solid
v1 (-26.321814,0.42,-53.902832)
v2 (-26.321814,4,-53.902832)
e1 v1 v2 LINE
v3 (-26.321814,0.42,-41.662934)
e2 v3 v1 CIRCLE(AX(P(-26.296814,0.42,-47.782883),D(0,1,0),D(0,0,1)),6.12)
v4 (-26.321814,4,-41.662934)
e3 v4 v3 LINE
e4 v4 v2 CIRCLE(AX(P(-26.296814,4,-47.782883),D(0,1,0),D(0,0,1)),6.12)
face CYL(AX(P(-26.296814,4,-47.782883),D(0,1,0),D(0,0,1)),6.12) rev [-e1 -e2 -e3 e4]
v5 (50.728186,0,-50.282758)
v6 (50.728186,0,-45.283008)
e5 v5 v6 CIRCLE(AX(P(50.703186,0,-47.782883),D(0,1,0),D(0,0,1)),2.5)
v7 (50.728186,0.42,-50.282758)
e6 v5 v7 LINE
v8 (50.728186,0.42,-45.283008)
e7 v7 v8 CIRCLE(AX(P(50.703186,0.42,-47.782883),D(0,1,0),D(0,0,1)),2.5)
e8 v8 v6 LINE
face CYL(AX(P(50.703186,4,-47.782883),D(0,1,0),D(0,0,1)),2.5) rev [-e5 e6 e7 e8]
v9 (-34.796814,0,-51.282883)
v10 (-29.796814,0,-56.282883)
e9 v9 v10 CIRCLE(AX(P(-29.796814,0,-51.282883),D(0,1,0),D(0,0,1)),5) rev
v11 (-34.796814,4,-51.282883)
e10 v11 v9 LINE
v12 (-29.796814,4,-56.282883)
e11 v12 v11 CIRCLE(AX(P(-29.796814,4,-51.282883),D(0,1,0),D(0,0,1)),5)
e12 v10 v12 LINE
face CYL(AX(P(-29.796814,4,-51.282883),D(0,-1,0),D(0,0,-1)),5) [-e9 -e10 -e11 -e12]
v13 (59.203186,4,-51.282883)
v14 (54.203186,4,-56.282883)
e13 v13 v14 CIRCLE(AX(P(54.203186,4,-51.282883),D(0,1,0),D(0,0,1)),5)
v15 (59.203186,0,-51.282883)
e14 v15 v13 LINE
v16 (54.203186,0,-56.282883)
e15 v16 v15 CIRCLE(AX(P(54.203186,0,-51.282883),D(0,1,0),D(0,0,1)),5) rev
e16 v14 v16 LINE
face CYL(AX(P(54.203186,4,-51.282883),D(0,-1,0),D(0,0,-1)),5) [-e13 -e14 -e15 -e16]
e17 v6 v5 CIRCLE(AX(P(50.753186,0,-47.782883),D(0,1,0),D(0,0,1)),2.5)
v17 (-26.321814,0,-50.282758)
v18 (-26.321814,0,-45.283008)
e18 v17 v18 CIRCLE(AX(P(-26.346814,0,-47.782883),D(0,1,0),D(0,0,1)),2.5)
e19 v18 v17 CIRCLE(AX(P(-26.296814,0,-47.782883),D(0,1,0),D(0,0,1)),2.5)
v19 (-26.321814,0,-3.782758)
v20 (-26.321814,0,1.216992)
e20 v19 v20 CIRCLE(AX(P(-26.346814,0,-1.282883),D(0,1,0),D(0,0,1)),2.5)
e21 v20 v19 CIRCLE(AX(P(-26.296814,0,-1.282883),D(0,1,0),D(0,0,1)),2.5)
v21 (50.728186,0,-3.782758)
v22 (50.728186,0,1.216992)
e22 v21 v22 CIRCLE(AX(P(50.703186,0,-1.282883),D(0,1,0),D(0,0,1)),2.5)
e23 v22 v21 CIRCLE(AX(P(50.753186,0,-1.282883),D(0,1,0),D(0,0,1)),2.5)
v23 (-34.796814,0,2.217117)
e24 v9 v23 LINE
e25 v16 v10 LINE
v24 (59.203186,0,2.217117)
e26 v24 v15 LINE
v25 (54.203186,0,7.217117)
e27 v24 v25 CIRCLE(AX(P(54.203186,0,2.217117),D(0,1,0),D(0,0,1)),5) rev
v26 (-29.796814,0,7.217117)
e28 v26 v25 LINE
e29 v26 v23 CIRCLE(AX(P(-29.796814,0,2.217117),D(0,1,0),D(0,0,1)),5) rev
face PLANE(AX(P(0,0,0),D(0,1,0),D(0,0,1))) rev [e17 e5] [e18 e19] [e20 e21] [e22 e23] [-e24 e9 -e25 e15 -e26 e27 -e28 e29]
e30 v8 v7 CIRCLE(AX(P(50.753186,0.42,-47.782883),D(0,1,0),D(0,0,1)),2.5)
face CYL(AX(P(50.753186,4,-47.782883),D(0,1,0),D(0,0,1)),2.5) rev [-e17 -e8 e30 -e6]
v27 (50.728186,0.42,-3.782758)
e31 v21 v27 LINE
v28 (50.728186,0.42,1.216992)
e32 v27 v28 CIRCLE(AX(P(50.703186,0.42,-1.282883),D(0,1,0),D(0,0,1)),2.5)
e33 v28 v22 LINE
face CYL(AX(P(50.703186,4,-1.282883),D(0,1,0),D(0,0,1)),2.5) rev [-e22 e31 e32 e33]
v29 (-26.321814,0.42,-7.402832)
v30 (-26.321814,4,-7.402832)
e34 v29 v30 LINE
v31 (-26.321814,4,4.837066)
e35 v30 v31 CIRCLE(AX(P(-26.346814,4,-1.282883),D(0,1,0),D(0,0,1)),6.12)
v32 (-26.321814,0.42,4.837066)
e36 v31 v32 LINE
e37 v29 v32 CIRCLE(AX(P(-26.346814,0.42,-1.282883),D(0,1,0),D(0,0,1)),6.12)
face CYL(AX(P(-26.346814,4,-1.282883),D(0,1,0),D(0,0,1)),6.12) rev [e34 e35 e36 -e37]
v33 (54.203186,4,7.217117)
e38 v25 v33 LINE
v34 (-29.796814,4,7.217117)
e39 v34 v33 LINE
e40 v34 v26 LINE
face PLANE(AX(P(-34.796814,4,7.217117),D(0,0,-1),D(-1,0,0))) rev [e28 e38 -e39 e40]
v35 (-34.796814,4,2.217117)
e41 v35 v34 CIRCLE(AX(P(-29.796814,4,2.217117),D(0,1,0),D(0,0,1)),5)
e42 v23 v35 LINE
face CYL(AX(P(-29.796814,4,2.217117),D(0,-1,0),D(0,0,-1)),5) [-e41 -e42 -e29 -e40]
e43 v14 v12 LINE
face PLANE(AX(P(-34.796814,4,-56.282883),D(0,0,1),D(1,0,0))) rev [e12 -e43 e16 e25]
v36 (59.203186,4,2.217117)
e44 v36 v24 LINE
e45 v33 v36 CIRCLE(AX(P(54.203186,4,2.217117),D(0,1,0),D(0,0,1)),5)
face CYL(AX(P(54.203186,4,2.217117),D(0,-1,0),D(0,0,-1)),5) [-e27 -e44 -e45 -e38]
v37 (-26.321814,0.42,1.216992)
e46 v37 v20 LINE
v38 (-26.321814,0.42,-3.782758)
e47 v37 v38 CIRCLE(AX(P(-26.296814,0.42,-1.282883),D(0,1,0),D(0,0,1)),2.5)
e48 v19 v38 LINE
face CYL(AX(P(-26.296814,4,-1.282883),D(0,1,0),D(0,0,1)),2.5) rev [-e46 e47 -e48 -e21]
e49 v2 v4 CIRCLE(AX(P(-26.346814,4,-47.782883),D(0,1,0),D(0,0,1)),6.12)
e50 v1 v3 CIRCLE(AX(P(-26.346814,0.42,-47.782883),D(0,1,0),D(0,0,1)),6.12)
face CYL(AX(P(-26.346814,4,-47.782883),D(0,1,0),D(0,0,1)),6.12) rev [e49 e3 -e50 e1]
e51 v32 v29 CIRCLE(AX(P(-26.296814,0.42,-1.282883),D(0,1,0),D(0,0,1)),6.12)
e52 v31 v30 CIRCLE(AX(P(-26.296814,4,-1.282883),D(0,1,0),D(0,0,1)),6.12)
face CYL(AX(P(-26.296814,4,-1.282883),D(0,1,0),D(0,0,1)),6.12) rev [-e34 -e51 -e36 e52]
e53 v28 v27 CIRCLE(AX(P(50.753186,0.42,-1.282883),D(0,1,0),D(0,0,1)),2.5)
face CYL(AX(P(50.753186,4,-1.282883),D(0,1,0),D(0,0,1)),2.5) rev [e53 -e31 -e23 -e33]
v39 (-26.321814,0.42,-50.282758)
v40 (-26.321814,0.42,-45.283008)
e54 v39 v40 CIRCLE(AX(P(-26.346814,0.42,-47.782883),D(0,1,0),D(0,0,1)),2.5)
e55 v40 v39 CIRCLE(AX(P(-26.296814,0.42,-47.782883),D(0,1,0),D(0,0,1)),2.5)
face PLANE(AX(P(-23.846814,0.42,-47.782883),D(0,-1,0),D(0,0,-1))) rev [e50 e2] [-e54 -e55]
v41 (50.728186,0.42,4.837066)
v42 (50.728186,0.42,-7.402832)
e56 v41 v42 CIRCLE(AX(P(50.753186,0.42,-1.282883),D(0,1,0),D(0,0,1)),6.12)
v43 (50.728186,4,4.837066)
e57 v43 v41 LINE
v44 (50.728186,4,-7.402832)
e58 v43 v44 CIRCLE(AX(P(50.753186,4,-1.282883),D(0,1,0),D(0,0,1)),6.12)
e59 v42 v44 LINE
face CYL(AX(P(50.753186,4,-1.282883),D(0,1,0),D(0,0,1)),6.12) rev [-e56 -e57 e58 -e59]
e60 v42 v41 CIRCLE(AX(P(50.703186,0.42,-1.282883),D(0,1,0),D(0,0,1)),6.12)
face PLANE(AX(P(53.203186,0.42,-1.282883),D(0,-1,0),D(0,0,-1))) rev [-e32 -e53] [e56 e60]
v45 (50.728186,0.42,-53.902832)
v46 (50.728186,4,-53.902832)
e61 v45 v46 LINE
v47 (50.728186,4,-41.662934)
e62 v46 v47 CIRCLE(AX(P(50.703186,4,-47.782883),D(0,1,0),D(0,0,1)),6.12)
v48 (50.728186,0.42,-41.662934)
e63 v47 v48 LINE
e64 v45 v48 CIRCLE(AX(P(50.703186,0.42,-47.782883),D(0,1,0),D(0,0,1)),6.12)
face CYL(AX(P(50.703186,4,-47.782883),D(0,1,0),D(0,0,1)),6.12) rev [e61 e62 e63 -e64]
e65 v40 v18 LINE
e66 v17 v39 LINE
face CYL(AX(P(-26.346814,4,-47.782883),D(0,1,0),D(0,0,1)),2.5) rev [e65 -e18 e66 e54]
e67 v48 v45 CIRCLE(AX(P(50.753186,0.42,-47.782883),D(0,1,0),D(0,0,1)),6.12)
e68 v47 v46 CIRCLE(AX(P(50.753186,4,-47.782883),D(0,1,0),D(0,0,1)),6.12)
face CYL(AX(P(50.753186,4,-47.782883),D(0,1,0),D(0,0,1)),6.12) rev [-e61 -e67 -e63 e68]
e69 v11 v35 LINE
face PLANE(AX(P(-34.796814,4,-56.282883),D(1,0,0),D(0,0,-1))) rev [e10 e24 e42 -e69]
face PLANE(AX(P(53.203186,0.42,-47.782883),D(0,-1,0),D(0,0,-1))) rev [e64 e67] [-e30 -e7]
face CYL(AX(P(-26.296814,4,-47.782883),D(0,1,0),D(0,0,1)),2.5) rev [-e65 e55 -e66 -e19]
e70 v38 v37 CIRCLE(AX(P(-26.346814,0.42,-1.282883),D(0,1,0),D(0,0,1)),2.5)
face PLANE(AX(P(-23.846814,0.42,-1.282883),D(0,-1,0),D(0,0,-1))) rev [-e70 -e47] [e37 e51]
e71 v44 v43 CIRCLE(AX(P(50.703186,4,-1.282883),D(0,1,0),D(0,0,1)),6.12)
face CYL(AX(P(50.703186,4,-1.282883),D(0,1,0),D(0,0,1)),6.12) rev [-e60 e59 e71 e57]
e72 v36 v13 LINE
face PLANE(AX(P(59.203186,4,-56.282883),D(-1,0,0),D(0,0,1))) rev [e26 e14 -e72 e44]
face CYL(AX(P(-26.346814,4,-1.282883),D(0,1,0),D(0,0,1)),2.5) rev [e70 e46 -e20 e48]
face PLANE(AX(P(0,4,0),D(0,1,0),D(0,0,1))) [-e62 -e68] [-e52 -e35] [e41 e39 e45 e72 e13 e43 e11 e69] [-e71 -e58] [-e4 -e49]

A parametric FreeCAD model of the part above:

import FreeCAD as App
import Part
import Sketcher


def edges_at(feature, points):
    """Names of the edges that pass closest to the given points."""
    edges = feature.Shape.Edges
    near = lambda p: min(range(len(edges)), key=lambda i: edges[i].distToShape(Part.Vertex(*p))[0])
    return sorted({f"Edge{near(p) + 1}" for p in points})

doc = App.newDocument("Part")
body = doc.addObject("PartDesign::Body", "Body")

sketch1 = doc.addObject("Sketcher::SketchObject", "Sketch")
body.addObject(sketch1)
sketch1.AttachmentSupport = (doc.XZ_Plane, [""])
sketch1.MapMode = "FlatFace"
sketch1.addGeometry(Part.LineSegment(App.Vector(-35, -56, 0), App.Vector(-35, 7, 0)), False)
sketch1.addGeometry(Part.LineSegment(App.Vector(-35, 7, 0), App.Vector(59, 7, 0)), False)
sketch1.addGeometry(Part.LineSegment(App.Vector(59, 7, 0), App.Vector(59, -56, 0)), False)
sketch1.addGeometry(Part.LineSegment(App.Vector(59, -56, 0), App.Vector(-35, -56, 0)), False)
sketch1.addConstraint(Sketcher.Constraint("Coincident", 0, 2, 1, 1))
sketch1.addConstraint(Sketcher.Constraint("Coincident", 1, 2, 2, 1))
sketch1.addConstraint(Sketcher.Constraint("Coincident", 2, 2, 3, 1))
sketch1.addConstraint(Sketcher.Constraint("Coincident", 3, 2, 0, 1))
sketch1.addConstraint(Sketcher.Constraint("Vertical", 0))
sketch1.addConstraint(Sketcher.Constraint("Horizontal", 1))
sketch1.addConstraint(Sketcher.Constraint("Vertical", 2))
sketch1.addConstraint(Sketcher.Constraint("Horizontal", 3))
sketch1.addConstraint(Sketcher.Constraint("DistanceX", 1, 1, 1, 2, 94.0))
sketch1.addConstraint(Sketcher.Constraint("DistanceY", 0, 1, 0, 2, 63.5))
sketch1.addConstraint(Sketcher.Constraint("DistanceX", 0, 2, -1, 1, 34.796814))
sketch1.addConstraint(Sketcher.Constraint("DistanceY", -1, 1, 0, 2, 7.217117))
pad1 = doc.addObject("PartDesign::Pad", "Pad")
body.addObject(pad1)
pad1.Profile = sketch1
pad1.Length = 4
pad1.Reversed = True

sketch2 = doc.addObject("Sketcher::SketchObject", "Sketch001")
body.addObject(sketch2)
sketch2.AttachmentSupport = (doc.XZ_Plane, [""])
sketch2.MapMode = "FlatFace"
sketch2.AttachmentOffset = App.Placement(App.Vector(0, 0, -4), App.Rotation())
sketch2.addGeometry(Part.Circle(App.Vector(-26.3, -47.8, 0), App.Vector(0, 0, 1), 2.5), False)
sketch2.addGeometry(Part.Circle(App.Vector(-26.3, -1.3, 0), App.Vector(0, 0, 1), 2.5), False)
sketch2.addGeometry(Part.Circle(App.Vector(50.8, -47.8, 0), App.Vector(0, 0, 1), 2.5), False)
sketch2.addGeometry(Part.Circle(App.Vector(50.8, -1.3, 0), App.Vector(0, 0, 1), 2.5), False)
sketch2.addGeometry(Part.Circle(App.Vector(-26.3, -47.8, 0), App.Vector(0, 0, 1), 2.5), False)
sketch2.addGeometry(Part.Circle(App.Vector(-26.3, -1.3, 0), App.Vector(0, 0, 1), 2.5), False)
sketch2.addGeometry(Part.Circle(App.Vector(50.7, -1.3, 0), App.Vector(0, 0, 1), 2.5), False)
sketch2.addGeometry(Part.Circle(App.Vector(50.7, -47.8, 0), App.Vector(0, 0, 1), 2.5), False)
sketch2.addConstraint(Sketcher.Constraint("Equal", 0, 1))
sketch2.addConstraint(Sketcher.Constraint("Equal", 1, 2))
sketch2.addConstraint(Sketcher.Constraint("Equal", 2, 3))
sketch2.addConstraint(Sketcher.Constraint("Equal", 3, 4))
sketch2.addConstraint(Sketcher.Constraint("Equal", 4, 5))
sketch2.addConstraint(Sketcher.Constraint("Equal", 5, 6))
sketch2.addConstraint(Sketcher.Constraint("Equal", 6, 7))
sketch2.addConstraint(Sketcher.Constraint("Horizontal", 0, 3, 2, 3))
sketch2.addConstraint(Sketcher.Constraint("Horizontal", 1, 3, 3, 3))
sketch2.addConstraint(Sketcher.Constraint("Horizontal", 2, 3, 4, 3))
sketch2.addConstraint(Sketcher.Constraint("Horizontal", 3, 3, 5, 3))
sketch2.addConstraint(Sketcher.Constraint("Horizontal", 5, 3, 6, 3))
sketch2.addConstraint(Sketcher.Constraint("Horizontal", 4, 3, 7, 3))
sketch2.addConstraint(Sketcher.Constraint("Vertical", 0, 3, 1, 3))
sketch2.addConstraint(Sketcher.Constraint("Vertical", 2, 3, 3, 3))
sketch2.addConstraint(Sketcher.Constraint("Vertical", 4, 3, 5, 3))
sketch2.addConstraint(Sketcher.Constraint("Vertical", 6, 3, 7, 3))
sketch2.addConstraint(Sketcher.Constraint("Diameter", 0, 5.0))
sketch2.addConstraint(Sketcher.Constraint("DistanceX", 1, 3, 6, 3, 77.0))
sketch2.addConstraint(Sketcher.Constraint("DistanceY", 0, 3, 1, 3, 46.5))
sketch2.addConstraint(Sketcher.Constraint("DistanceX", 4, 3, 2, 3, 77.1))
sketch2.addConstraint(Sketcher.Constraint("DistanceX", 0, 3, 2, 3, 77.05))
sketch2.addConstraint(Sketcher.Constraint("DistanceX", 0, 3, -1, 1, 26.296814))
sketch2.addConstraint(Sketcher.Constraint("DistanceY", 0, 3, -1, 1, 47.782883))
doc.recompute()
hole = doc.addObject("PartDesign::Hole", "Hole")
body.addObject(hole)
hole.Profile = sketch2
hole.ThreadType = "None"
hole.Diameter = 5
hole.DepthType = "Dimension"
hole.Depth = 18
hole.DrillPoint = "Angled"
hole.DrillPointAngle = 118
hole.HoleCutType = "Counterbore"
hole.HoleCutDiameter = 12.24
hole.HoleCutDepth = 3.58
hole.Reversed = True
doc.recompute()

fillet = doc.addObject("PartDesign::Fillet", "Fillet")
body.addObject(fillet)
fillet.Base = (hole, edges_at(hole, [
    (-34.797, 2, -56.283),
    (59.203, 2, -56.283),
    (59.203, 2, 7.217),
    (-34.797, 2, 7.217),
]))
fillet.Radius = 5

doc.recompute()
